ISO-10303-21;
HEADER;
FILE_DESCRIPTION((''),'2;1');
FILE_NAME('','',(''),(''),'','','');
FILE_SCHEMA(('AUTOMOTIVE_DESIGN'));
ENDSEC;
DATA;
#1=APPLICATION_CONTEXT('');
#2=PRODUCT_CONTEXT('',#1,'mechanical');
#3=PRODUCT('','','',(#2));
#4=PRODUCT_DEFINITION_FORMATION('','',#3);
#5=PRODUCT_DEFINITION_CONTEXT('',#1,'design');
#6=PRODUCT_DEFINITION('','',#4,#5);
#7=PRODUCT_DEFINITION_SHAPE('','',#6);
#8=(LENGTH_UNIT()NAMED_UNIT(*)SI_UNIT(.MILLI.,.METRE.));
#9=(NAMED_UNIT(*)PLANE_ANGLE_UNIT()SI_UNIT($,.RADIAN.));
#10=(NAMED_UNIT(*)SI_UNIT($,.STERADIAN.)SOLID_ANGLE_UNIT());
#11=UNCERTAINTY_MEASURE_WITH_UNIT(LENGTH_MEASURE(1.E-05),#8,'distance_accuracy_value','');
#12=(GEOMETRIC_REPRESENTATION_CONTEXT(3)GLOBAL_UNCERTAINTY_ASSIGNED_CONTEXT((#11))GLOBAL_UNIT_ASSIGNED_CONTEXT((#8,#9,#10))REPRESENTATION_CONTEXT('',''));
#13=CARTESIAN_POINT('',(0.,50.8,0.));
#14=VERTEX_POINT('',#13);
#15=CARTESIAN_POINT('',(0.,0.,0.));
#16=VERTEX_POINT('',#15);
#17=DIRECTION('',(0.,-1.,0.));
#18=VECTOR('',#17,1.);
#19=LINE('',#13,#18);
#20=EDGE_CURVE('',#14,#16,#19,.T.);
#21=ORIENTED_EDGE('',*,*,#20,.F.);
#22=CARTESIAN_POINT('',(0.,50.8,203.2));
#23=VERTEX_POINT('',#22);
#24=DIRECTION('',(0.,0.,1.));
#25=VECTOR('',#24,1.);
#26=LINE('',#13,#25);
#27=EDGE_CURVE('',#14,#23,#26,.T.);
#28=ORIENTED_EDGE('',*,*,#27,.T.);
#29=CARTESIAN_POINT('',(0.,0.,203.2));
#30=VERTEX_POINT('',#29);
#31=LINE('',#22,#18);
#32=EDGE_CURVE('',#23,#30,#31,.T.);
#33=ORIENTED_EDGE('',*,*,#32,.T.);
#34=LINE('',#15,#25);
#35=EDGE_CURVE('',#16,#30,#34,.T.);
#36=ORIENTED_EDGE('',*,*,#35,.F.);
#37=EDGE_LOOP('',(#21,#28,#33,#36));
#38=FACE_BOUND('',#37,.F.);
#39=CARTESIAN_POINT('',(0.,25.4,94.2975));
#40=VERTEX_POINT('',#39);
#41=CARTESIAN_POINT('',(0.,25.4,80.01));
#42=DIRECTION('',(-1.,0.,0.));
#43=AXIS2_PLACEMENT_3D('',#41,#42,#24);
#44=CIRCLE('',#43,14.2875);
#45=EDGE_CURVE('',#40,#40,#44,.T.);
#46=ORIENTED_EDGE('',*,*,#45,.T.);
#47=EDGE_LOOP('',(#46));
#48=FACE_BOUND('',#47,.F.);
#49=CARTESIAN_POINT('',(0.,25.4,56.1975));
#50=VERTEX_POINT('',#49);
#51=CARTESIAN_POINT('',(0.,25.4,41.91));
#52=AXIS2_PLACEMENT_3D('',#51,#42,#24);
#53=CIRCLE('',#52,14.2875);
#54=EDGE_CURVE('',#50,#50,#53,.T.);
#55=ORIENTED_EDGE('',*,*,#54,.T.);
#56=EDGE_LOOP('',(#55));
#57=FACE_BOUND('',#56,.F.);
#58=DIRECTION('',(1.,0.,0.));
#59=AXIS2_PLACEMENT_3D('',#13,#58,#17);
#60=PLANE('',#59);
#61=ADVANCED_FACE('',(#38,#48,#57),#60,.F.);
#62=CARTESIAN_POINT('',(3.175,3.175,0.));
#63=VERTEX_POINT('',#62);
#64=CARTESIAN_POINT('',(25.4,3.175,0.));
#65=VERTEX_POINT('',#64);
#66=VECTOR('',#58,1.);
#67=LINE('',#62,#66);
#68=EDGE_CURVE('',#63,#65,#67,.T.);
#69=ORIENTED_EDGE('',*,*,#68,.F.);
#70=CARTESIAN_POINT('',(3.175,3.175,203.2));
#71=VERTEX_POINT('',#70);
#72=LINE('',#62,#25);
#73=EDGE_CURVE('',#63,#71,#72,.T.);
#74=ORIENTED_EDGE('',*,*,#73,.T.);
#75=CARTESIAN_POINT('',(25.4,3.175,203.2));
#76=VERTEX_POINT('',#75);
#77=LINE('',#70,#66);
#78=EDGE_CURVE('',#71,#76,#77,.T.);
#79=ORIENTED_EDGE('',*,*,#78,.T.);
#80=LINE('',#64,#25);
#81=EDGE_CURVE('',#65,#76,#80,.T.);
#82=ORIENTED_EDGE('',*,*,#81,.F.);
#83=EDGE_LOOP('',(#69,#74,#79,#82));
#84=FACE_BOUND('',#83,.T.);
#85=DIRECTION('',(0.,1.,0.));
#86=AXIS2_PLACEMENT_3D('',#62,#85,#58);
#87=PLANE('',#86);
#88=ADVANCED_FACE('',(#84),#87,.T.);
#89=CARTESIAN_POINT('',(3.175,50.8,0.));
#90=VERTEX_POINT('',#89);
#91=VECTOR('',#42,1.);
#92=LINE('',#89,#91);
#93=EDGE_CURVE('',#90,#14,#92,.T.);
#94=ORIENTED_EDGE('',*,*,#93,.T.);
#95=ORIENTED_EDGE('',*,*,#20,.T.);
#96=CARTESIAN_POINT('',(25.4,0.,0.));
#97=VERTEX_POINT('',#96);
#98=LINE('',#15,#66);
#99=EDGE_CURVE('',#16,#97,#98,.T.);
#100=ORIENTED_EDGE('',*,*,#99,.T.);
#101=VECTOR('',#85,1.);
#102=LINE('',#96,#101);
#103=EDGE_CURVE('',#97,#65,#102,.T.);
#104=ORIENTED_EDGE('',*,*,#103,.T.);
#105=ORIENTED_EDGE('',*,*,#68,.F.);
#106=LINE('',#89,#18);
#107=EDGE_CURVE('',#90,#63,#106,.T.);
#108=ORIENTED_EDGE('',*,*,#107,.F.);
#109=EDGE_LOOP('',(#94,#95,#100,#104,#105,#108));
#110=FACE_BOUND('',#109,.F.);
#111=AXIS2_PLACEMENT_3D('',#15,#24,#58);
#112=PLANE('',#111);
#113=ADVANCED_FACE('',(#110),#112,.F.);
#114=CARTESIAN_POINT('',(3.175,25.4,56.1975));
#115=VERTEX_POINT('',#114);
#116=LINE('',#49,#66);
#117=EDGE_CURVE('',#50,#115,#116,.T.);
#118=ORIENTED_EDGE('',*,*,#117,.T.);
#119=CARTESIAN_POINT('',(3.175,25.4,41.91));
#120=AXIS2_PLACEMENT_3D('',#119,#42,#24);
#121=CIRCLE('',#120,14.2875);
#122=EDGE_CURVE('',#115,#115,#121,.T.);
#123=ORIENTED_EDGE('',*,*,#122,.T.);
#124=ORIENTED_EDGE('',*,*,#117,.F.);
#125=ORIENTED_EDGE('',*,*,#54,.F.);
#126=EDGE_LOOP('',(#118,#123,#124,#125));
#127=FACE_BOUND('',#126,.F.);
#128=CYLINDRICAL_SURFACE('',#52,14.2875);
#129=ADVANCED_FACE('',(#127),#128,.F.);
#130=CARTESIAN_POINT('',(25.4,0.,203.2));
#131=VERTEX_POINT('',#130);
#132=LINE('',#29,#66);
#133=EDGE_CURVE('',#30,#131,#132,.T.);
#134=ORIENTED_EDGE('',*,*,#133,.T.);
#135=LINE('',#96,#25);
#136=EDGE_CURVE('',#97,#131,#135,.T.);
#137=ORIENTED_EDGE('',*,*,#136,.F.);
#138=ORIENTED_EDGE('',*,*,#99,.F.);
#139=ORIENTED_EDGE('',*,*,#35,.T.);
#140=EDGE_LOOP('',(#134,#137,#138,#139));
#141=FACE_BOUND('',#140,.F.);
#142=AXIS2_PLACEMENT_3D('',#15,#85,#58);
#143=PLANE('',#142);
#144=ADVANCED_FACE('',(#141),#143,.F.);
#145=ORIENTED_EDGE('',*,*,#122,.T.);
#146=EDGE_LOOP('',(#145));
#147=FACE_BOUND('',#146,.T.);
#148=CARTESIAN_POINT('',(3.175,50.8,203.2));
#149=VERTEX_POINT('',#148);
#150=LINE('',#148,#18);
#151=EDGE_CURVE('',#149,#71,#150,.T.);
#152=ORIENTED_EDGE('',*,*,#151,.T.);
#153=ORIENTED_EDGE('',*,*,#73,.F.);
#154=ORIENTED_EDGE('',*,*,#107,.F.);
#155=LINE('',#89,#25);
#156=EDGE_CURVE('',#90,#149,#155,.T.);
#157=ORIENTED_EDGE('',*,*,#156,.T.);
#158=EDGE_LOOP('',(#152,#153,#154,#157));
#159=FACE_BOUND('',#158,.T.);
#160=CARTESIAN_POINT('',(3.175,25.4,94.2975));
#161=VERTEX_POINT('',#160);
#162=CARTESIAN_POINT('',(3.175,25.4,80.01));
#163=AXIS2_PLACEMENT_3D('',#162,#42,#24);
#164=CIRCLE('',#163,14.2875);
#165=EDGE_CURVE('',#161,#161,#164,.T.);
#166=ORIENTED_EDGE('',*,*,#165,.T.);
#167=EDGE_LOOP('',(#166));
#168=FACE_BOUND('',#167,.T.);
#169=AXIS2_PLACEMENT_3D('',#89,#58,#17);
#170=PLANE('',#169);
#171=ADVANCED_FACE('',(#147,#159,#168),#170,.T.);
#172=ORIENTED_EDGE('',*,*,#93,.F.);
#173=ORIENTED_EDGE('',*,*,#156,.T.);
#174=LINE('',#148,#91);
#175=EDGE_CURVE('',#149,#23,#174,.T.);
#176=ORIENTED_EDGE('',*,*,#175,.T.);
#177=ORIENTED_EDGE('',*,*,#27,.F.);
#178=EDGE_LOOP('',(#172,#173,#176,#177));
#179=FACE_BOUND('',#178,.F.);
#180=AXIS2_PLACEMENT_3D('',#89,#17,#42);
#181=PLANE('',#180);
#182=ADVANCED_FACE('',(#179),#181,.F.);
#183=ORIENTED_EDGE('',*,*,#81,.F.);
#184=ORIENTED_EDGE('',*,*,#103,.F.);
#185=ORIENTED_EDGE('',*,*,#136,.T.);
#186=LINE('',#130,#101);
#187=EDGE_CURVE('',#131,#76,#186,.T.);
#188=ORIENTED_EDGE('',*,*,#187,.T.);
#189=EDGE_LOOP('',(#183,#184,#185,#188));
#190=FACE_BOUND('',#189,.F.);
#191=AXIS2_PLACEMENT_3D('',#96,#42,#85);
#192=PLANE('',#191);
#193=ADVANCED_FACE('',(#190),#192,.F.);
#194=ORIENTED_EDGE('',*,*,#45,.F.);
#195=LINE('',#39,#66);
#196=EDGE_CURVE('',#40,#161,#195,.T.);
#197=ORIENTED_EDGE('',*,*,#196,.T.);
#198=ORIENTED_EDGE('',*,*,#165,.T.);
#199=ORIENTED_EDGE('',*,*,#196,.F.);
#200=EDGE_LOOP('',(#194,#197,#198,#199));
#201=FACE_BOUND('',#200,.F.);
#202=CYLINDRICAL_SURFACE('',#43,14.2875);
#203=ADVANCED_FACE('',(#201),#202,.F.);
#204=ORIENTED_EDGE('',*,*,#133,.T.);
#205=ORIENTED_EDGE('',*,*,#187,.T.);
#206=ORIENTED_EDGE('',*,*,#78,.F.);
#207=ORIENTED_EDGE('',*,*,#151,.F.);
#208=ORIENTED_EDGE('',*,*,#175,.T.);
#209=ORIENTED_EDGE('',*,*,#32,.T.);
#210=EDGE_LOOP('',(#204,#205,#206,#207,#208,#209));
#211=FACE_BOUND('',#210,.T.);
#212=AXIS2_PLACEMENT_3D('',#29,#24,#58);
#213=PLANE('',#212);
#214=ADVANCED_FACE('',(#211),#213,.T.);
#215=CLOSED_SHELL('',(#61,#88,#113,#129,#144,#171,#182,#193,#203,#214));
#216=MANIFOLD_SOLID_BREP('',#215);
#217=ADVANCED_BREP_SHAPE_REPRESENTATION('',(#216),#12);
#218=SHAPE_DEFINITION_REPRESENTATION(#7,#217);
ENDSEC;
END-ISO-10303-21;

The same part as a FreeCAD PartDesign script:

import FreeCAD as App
import Part
import Sketcher
Q = App.Units.Quantity

doc = App.newDocument("Part")
params = doc.addObject("Spreadsheet::Sheet", "Params")
for row, (alias, value) in enumerate([
    ("sketch1_width", "1 in"),
    ("sketch1_height", "2 in"),
    ("sketch1_width2", "0.125 in"),
    ("pad1_length", "8 in"),
    ("sketch2_diameter", "1.125 in"),
    ("pocket1_length", "8 in"),
], start=1):
    params.set(f"A{row}", alias)
    params.set(f"B{row}", "=" + value)
    params.setAlias(f"B{row}", alias)

body = doc.addObject("PartDesign::Body", "Body")

sketch1 = body.newObject("Sketcher::SketchObject", "Sketch")
sketch1.AttachmentSupport = (doc.getObject("XY_Plane"), [""])
sketch1.MapMode = "FlatFace"
sketch1.addGeometry([
    Part.LineSegment(App.Vector(0, 50.8, 0), App.Vector(0, 0, 0)),
    Part.LineSegment(App.Vector(0, 0, 0), App.Vector(25.4, 0, 0)),
    Part.LineSegment(App.Vector(25.4, 0, 0), App.Vector(25.4, 3.175, 0)),
    Part.LineSegment(App.Vector(25.4, 3.175, 0), App.Vector(3.175, 3.175, 0)),
    Part.LineSegment(App.Vector(3.175, 3.175, 0), App.Vector(3.175, 50.8, 0)),
    Part.LineSegment(App.Vector(3.175, 50.8, 0), App.Vector(0, 50.8, 0)),
], False)
sketch1.addConstraint([
    Sketcher.Constraint("Coincident", 0, 2, 1, 1),
    Sketcher.Constraint("Coincident", 1, 2, 2, 1),
    Sketcher.Constraint("Coincident", 2, 2, 3, 1),
    Sketcher.Constraint("Coincident", 3, 2, 4, 1),
    Sketcher.Constraint("Coincident", 4, 2, 5, 1),
    Sketcher.Constraint("Coincident", 5, 2, 0, 1),
    Sketcher.Constraint("Vertical", 0),
    Sketcher.Constraint("Horizontal", 1),
    Sketcher.Constraint("Vertical", 2),
    Sketcher.Constraint("Horizontal", 3),
    Sketcher.Constraint("Vertical", 4),
    Sketcher.Constraint("Horizontal", 5),
    Sketcher.Constraint("Coincident", 0, 2, -1, 1),
    Sketcher.Constraint("Equal", 5, 2),
    Sketcher.Constraint("DistanceX", 1, 1, 1, 2, Q("1 in")),
    Sketcher.Constraint("DistanceY", 0, 2, 0, 1, Q("2 in")),
    Sketcher.Constraint("DistanceX", 5, 2, 5, 1, Q("0.125 in")),
])
sketch1.setExpression("Constraints[14]", "Params.sketch1_width")
sketch1.setExpression("Constraints[15]", "Params.sketch1_height")
sketch1.setExpression("Constraints[16]", "Params.sketch1_width2")
pad1 = body.newObject("PartDesign::Pad", "Pad")
pad1.Profile = sketch1
pad1.setExpression("Length", "Params.pad1_length")

sketch2 = body.newObject("Sketcher::SketchObject", "Sketch001")
sketch2.AttachmentSupport = (doc.getObject("YZ_Plane"), [""])
sketch2.MapMode = "FlatFace"
sketch2.addGeometry([
    Part.Circle(App.Vector(25.4, 41.91, 0), App.Vector(0, 0, 1), 14.2875),
    Part.Circle(App.Vector(25.4, 80.01, 0), App.Vector(0, 0, 1), 14.2875),
], False)
sketch2.addConstraint([
    Sketcher.Constraint("Equal", 0, 1),
    Sketcher.Constraint("Vertical", 0, 3, 1, 3),
    Sketcher.Constraint("Diameter", 0, Q("1.125 in")),
    Sketcher.Constraint("DistanceX", -1, 1, 0, 3, Q("1 in")),
    Sketcher.Constraint("DistanceY", 0, 3, 1, 3, Q("1.5 in")),
    Sketcher.Constraint("DistanceY", -1, 1, 0, 3, Q("1.65 in")),
])
sketch2.setExpression("Constraints[2]", "Params.sketch2_diameter")
pocket1 = body.newObject("PartDesign::Pocket", "Pocket")
pocket1.Profile = sketch2
pocket1.setExpression("Length", "Params.pocket1_length")
pocket1.Reversed = True

doc.recompute()
